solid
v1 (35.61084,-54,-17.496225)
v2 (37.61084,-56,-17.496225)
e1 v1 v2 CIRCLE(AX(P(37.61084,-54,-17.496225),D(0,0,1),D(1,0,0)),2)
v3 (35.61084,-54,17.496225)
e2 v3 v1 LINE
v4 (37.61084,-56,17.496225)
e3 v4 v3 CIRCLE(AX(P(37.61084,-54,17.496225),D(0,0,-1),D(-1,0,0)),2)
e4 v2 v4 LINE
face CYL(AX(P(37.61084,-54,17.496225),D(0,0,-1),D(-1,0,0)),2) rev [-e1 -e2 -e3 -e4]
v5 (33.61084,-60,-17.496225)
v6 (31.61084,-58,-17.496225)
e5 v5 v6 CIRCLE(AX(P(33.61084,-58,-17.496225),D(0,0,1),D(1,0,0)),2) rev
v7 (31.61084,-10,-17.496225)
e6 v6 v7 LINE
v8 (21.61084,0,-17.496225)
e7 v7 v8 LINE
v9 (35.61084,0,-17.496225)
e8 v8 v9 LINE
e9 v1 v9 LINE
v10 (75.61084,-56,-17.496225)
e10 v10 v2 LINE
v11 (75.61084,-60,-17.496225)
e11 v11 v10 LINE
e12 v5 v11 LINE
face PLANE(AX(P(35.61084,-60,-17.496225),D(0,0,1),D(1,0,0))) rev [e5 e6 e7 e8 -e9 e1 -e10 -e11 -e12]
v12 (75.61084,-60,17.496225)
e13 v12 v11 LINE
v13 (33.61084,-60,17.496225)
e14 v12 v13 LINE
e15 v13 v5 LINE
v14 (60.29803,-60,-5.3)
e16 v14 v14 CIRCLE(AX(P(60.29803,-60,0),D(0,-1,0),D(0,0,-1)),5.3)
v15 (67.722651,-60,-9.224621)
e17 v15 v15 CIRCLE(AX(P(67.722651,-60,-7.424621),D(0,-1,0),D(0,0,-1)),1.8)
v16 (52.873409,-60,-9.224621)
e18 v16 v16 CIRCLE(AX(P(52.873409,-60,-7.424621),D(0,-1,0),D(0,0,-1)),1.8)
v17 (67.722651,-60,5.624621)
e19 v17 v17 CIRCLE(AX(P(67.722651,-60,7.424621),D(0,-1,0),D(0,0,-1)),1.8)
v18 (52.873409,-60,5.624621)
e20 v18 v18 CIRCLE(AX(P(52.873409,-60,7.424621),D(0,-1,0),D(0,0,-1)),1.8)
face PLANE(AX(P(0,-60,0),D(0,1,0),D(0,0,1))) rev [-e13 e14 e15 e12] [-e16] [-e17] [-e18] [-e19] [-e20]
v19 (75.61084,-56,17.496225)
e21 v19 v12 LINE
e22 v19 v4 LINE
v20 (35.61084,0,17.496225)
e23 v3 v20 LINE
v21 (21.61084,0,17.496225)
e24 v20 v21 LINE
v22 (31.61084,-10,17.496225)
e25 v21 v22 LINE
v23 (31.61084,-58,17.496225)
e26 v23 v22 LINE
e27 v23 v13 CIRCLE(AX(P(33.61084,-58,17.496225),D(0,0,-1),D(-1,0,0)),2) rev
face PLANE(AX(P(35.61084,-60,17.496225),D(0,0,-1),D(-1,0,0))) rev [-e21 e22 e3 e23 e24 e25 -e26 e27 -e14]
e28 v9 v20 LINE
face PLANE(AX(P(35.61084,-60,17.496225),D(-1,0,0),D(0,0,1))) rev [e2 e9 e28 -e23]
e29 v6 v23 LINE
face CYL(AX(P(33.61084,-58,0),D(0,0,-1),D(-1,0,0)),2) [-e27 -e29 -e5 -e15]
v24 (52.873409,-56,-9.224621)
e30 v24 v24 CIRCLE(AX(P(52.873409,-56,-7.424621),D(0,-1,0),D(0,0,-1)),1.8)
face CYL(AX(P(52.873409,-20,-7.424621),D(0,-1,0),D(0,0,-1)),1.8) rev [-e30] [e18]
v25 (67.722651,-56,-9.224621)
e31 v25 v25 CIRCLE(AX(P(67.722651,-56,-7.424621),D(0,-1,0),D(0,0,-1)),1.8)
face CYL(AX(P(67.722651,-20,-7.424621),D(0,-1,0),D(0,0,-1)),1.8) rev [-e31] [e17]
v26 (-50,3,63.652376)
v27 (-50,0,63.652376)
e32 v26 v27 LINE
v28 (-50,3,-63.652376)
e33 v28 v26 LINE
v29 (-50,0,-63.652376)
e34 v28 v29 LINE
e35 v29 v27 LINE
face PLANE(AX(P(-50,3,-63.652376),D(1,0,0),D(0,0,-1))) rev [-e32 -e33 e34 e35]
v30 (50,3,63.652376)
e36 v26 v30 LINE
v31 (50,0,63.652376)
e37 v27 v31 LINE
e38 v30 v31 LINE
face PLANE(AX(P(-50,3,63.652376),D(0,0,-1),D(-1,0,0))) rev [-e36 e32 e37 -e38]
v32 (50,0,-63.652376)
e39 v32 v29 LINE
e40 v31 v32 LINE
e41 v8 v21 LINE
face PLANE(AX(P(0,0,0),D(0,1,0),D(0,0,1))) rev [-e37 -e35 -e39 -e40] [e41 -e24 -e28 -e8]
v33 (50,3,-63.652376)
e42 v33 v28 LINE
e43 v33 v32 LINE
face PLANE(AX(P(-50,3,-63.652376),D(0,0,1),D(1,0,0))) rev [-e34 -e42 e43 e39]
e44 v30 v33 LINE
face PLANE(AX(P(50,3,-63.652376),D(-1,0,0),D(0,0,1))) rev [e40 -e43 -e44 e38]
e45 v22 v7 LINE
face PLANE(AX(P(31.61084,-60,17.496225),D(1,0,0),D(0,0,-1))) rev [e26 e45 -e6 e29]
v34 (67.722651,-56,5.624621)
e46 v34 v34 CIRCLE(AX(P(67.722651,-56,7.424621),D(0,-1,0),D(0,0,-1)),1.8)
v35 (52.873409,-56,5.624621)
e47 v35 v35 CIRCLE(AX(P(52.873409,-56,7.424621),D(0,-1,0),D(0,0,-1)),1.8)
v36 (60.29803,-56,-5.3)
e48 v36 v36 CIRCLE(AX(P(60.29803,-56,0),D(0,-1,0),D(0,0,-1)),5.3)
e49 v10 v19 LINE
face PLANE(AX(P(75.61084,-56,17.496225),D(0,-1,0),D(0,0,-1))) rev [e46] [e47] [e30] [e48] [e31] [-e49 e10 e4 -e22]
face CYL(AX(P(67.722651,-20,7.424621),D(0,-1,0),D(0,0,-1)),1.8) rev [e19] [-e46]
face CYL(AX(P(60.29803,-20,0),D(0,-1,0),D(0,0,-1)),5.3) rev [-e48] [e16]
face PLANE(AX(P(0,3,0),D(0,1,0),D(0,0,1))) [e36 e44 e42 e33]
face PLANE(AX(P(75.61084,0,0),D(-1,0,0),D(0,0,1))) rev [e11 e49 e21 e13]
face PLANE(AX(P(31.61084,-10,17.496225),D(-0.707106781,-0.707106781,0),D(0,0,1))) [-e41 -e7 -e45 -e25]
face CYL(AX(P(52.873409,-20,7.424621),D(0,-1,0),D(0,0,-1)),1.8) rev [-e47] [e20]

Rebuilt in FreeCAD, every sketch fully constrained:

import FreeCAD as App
import Part
import Sketcher
from FreeCAD import Vector


def edges_at(feature, points):
    """Names of the edges that pass closest to the given points."""
    edges = feature.Shape.Edges
    near = lambda p: min(range(len(edges)), key=lambda i: edges[i].distToShape(Part.Vertex(*p))[0])
    return sorted({f"Edge{near(p) + 1}" for p in points})

doc = App.newDocument("Part")
params = doc.addObject("Spreadsheet::Sheet", "Params")
for row, (alias, value) in enumerate([
    ("sketch1_width", "100 mm"),
    ("pad1_length", "3 mm"),
    ("sketch2_width", "4 mm"),
    ("pad2_length", "60 mm"),
    ("sketch3_width", "4 mm"),
    ("pad3_length", "40 mm"),
    ("chamfer_size", "10 mm"),
    ("fillet_radius", "2 mm"),
    ("sketch4_diameter", "10.6 mm"),
    ("sketch4_diameter2", "3.6 mm"),
    ("pocket1_length", "40 mm"),
], start=1):
    params.set(f"A{row}", alias)
    params.set(f"B{row}", "=" + value)
    params.setAlias(f"B{row}", alias)

body = doc.addObject("PartDesign::Body", "Body")

sketch1 = body.newObject("Sketcher::SketchObject", "Sketch")
sketch1.AttachmentSupport = (doc.getObject("XZ_Plane"), [""])
sketch1.MapMode = "FlatFace"
sketch1.addGeometry(Part.LineSegment(Vector(-50, -64, 0), Vector(-50, 64, 0)), False)
sketch1.addGeometry(Part.LineSegment(Vector(-50, 64, 0), Vector(50, 64, 0)), False)
sketch1.addGeometry(Part.LineSegment(Vector(50, 64, 0), Vector(50, -64, 0)), False)
sketch1.addGeometry(Part.LineSegment(Vector(50, -64, 0), Vector(-50, -64, 0)), False)
sketch1.addConstraint(Sketcher.Constraint("Coincident", 0, 2, 1, 1))
sketch1.addConstraint(Sketcher.Constraint("Coincident", 1, 2, 2, 1))
sketch1.addConstraint(Sketcher.Constraint("Coincident", 2, 2, 3, 1))
sketch1.addConstraint(Sketcher.Constraint("Coincident", 3, 2, 0, 1))
sketch1.addConstraint(Sketcher.Constraint("Vertical", 0))
sketch1.addConstraint(Sketcher.Constraint("Horizontal", 1))
sketch1.addConstraint(Sketcher.Constraint("Vertical", 2))
sketch1.addConstraint(Sketcher.Constraint("Horizontal", 3))
sketch1.addConstraint(Sketcher.Constraint("Symmetric", 0, 2, 2, 2, -1, 1))
sketch1.addConstraint(Sketcher.Constraint("DistanceX", 1, 1, 1, 2, 100.0))
sketch1.addConstraint(Sketcher.Constraint("DistanceY", 0, 1, 0, 2, 127.304753))
sketch1.setExpression("Constraints[9]", "Params.sketch1_width")
pad1 = body.newObject("PartDesign::Pad", "Pad")
pad1.Profile = sketch1
pad1.setExpression("Length", "Params.pad1_length")
pad1.Reversed = True

sketch2 = body.newObject("Sketcher::SketchObject", "Sketch001")
sketch2.AttachmentSupport = (doc.getObject("XZ_Plane"), [""])
sketch2.MapMode = "FlatFace"
sketch2.addGeometry(Part.LineSegment(Vector(31.6, 17.5, 0), Vector(31.6, -17.5, 0)), False)
sketch2.addGeometry(Part.LineSegment(Vector(31.6, -17.5, 0), Vector(35.6, -17.5, 0)), False)
sketch2.addGeometry(Part.LineSegment(Vector(35.6, -17.5, 0), Vector(35.6, 17.5, 0)), False)
sketch2.addGeometry(Part.LineSegment(Vector(35.6, 17.5, 0), Vector(31.6, 17.5, 0)), False)
sketch2.addConstraint(Sketcher.Constraint("Coincident", 0, 2, 1, 1))
sketch2.addConstraint(Sketcher.Constraint("Coincident", 1, 2, 2, 1))
sketch2.addConstraint(Sketcher.Constraint("Coincident", 2, 2, 3, 1))
sketch2.addConstraint(Sketcher.Constraint("Coincident", 3, 2, 0, 1))
sketch2.addConstraint(Sketcher.Constraint("Vertical", 0))
sketch2.addConstraint(Sketcher.Constraint("Horizontal", 1))
sketch2.addConstraint(Sketcher.Constraint("Vertical", 2))
sketch2.addConstraint(Sketcher.Constraint("Horizontal", 3))
sketch2.addConstraint(Sketcher.Constraint("DistanceX", 1, 1, 1, 2, 4.0))
sketch2.addConstraint(Sketcher.Constraint("DistanceY", 0, 2, 0, 1, 34.99245))
sketch2.addConstraint(Sketcher.Constraint("DistanceX", -1, 1, 0, 2, 31.61084))
sketch2.addConstraint(Sketcher.Constraint("DistanceY", 0, 2, -1, 1, 17.496225))
sketch2.setExpression("Constraints[8]", "Params.sketch2_width")
pad2 = body.newObject("PartDesign::Pad", "Pad001")
pad2.Profile = sketch2
pad2.setExpression("Length", "Params.pad2_length")

sketch3 = body.newObject("Sketcher::SketchObject", "Sketch002")
sketch3.AttachmentSupport = (doc.getObject("YZ_Plane"), [""])
sketch3.MapMode = "FlatFace"
sketch3.AttachmentOffset = App.Placement(Vector(0, 0, 35.61084), App.Rotation())
sketch3.addGeometry(Part.LineSegment(Vector(-56, 17.5, 0), Vector(-60, 17.5, 0)), False)
sketch3.addGeometry(Part.LineSegment(Vector(-60, 17.5, 0), Vector(-60, -17.5, 0)), False)
sketch3.addGeometry(Part.LineSegment(Vector(-60, -17.5, 0), Vector(-56, -17.5, 0)), False)
sketch3.addGeometry(Part.LineSegment(Vector(-56, -17.5, 0), Vector(-56, 17.5, 0)), False)
sketch3.addConstraint(Sketcher.Constraint("Coincident", 0, 2, 1, 1))
sketch3.addConstraint(Sketcher.Constraint("Coincident", 1, 2, 2, 1))
sketch3.addConstraint(Sketcher.Constraint("Coincident", 2, 2, 3, 1))
sketch3.addConstraint(Sketcher.Constraint("Coincident", 3, 2, 0, 1))
sketch3.addConstraint(Sketcher.Constraint("Horizontal", 0))
sketch3.addConstraint(Sketcher.Constraint("Vertical", 1))
sketch3.addConstraint(Sketcher.Constraint("Horizontal", 2))
sketch3.addConstraint(Sketcher.Constraint("Vertical", 3))
sketch3.addConstraint(Sketcher.Constraint("DistanceX", 0, 2, 0, 1, 4.0))
sketch3.addConstraint(Sketcher.Constraint("DistanceX", 0, 2, -1, 1, 60.0))
sketch3.addConstraint(Sketcher.Constraint("DistanceY", 1, 2, 1, 1, 34.99245))
sketch3.addConstraint(Sketcher.Constraint("DistanceY", -1, 1, 0, 2, 17.496225))
sketch3.setExpression("Constraints[8]", "Params.sketch3_width")
pad3 = body.newObject("PartDesign::Pad", "Pad002")
pad3.Profile = sketch3
pad3.setExpression("Length", "Params.pad3_length")
doc.recompute()

chamfer = body.newObject("PartDesign::Chamfer", "Chamfer")
chamfer.Base = (pad3, edges_at(pad3, [(31.611, 0, 0)]))
chamfer.setExpression("Size", "Params.chamfer_size")
doc.recompute()

fillet = body.newObject("PartDesign::Fillet", "Fillet")
fillet.Base = (chamfer, edges_at(chamfer, [(31.611, -60, 0), (35.611, -56, 0)]))
fillet.setExpression("Radius", "Params.fillet_radius")

sketch4 = body.newObject("Sketcher::SketchObject", "Sketch003")
sketch4.AttachmentSupport = (doc.getObject("XZ_Plane"), [""])
sketch4.MapMode = "FlatFace"
sketch4.AttachmentOffset = App.Placement(Vector(0, 0, 60), App.Rotation())
sketch4.addGeometry(Part.Circle(Vector(60.3, 0, 0), Vector(0, 0, 1), 5.3), False)
sketch4.addGeometry(Part.Circle(Vector(67.7, -7.4, 0), Vector(0, 0, 1), 1.8), False)
sketch4.addGeometry(Part.Circle(Vector(52.9, -7.4, 0), Vector(0, 0, 1), 1.8), False)
sketch4.addGeometry(Part.Circle(Vector(52.9, 7.4, 0), Vector(0, 0, 1), 1.8), False)
sketch4.addGeometry(Part.Circle(Vector(67.7, 7.4, 0), Vector(0, 0, 1), 1.8), False)
sketch4.addConstraint(Sketcher.Constraint("Equal", 1, 2))
sketch4.addConstraint(Sketcher.Constraint("Equal", 2, 3))
sketch4.addConstraint(Sketcher.Constraint("Equal", 3, 4))
sketch4.addConstraint(Sketcher.Constraint("Symmetric", 2, 3, 3, 3, -1))
sketch4.addConstraint(Sketcher.Constraint("Symmetric", 1, 3, 4, 3, -1))
sketch4.addConstraint(Sketcher.Constraint("PointOnObject", 0, 3, -1))
sketch4.addConstraint(Sketcher.Constraint("Horizontal", 1, 3, 2, 3))
sketch4.addConstraint(Sketcher.Constraint("Diameter", 0, 10.6))
sketch4.addConstraint(Sketcher.Constraint("Diameter", 1, 3.6))
sketch4.addConstraint(Sketcher.Constraint("DistanceX", -1, 1, 0, 3, 60.29803))
sketch4.addConstraint(Sketcher.Constraint("DistanceX", -1, 1, 1, 3, 67.722651))
sketch4.addConstraint(Sketcher.Constraint("DistanceY", 1, 3, -1, 1, 7.424621))
sketch4.addConstraint(Sketcher.Constraint("DistanceX", -1, 1, 2, 3, 52.873409))
sketch4.setExpression("Constraints[7]", "Params.sketch4_diameter")
sketch4.setExpression("Constraints[8]", "Params.sketch4_diameter2")
pocket1 = body.newObject("PartDesign::Pocket", "Pocket")
pocket1.Profile = sketch4
pocket1.setExpression("Length", "Params.pocket1_length")

doc.recompute()
